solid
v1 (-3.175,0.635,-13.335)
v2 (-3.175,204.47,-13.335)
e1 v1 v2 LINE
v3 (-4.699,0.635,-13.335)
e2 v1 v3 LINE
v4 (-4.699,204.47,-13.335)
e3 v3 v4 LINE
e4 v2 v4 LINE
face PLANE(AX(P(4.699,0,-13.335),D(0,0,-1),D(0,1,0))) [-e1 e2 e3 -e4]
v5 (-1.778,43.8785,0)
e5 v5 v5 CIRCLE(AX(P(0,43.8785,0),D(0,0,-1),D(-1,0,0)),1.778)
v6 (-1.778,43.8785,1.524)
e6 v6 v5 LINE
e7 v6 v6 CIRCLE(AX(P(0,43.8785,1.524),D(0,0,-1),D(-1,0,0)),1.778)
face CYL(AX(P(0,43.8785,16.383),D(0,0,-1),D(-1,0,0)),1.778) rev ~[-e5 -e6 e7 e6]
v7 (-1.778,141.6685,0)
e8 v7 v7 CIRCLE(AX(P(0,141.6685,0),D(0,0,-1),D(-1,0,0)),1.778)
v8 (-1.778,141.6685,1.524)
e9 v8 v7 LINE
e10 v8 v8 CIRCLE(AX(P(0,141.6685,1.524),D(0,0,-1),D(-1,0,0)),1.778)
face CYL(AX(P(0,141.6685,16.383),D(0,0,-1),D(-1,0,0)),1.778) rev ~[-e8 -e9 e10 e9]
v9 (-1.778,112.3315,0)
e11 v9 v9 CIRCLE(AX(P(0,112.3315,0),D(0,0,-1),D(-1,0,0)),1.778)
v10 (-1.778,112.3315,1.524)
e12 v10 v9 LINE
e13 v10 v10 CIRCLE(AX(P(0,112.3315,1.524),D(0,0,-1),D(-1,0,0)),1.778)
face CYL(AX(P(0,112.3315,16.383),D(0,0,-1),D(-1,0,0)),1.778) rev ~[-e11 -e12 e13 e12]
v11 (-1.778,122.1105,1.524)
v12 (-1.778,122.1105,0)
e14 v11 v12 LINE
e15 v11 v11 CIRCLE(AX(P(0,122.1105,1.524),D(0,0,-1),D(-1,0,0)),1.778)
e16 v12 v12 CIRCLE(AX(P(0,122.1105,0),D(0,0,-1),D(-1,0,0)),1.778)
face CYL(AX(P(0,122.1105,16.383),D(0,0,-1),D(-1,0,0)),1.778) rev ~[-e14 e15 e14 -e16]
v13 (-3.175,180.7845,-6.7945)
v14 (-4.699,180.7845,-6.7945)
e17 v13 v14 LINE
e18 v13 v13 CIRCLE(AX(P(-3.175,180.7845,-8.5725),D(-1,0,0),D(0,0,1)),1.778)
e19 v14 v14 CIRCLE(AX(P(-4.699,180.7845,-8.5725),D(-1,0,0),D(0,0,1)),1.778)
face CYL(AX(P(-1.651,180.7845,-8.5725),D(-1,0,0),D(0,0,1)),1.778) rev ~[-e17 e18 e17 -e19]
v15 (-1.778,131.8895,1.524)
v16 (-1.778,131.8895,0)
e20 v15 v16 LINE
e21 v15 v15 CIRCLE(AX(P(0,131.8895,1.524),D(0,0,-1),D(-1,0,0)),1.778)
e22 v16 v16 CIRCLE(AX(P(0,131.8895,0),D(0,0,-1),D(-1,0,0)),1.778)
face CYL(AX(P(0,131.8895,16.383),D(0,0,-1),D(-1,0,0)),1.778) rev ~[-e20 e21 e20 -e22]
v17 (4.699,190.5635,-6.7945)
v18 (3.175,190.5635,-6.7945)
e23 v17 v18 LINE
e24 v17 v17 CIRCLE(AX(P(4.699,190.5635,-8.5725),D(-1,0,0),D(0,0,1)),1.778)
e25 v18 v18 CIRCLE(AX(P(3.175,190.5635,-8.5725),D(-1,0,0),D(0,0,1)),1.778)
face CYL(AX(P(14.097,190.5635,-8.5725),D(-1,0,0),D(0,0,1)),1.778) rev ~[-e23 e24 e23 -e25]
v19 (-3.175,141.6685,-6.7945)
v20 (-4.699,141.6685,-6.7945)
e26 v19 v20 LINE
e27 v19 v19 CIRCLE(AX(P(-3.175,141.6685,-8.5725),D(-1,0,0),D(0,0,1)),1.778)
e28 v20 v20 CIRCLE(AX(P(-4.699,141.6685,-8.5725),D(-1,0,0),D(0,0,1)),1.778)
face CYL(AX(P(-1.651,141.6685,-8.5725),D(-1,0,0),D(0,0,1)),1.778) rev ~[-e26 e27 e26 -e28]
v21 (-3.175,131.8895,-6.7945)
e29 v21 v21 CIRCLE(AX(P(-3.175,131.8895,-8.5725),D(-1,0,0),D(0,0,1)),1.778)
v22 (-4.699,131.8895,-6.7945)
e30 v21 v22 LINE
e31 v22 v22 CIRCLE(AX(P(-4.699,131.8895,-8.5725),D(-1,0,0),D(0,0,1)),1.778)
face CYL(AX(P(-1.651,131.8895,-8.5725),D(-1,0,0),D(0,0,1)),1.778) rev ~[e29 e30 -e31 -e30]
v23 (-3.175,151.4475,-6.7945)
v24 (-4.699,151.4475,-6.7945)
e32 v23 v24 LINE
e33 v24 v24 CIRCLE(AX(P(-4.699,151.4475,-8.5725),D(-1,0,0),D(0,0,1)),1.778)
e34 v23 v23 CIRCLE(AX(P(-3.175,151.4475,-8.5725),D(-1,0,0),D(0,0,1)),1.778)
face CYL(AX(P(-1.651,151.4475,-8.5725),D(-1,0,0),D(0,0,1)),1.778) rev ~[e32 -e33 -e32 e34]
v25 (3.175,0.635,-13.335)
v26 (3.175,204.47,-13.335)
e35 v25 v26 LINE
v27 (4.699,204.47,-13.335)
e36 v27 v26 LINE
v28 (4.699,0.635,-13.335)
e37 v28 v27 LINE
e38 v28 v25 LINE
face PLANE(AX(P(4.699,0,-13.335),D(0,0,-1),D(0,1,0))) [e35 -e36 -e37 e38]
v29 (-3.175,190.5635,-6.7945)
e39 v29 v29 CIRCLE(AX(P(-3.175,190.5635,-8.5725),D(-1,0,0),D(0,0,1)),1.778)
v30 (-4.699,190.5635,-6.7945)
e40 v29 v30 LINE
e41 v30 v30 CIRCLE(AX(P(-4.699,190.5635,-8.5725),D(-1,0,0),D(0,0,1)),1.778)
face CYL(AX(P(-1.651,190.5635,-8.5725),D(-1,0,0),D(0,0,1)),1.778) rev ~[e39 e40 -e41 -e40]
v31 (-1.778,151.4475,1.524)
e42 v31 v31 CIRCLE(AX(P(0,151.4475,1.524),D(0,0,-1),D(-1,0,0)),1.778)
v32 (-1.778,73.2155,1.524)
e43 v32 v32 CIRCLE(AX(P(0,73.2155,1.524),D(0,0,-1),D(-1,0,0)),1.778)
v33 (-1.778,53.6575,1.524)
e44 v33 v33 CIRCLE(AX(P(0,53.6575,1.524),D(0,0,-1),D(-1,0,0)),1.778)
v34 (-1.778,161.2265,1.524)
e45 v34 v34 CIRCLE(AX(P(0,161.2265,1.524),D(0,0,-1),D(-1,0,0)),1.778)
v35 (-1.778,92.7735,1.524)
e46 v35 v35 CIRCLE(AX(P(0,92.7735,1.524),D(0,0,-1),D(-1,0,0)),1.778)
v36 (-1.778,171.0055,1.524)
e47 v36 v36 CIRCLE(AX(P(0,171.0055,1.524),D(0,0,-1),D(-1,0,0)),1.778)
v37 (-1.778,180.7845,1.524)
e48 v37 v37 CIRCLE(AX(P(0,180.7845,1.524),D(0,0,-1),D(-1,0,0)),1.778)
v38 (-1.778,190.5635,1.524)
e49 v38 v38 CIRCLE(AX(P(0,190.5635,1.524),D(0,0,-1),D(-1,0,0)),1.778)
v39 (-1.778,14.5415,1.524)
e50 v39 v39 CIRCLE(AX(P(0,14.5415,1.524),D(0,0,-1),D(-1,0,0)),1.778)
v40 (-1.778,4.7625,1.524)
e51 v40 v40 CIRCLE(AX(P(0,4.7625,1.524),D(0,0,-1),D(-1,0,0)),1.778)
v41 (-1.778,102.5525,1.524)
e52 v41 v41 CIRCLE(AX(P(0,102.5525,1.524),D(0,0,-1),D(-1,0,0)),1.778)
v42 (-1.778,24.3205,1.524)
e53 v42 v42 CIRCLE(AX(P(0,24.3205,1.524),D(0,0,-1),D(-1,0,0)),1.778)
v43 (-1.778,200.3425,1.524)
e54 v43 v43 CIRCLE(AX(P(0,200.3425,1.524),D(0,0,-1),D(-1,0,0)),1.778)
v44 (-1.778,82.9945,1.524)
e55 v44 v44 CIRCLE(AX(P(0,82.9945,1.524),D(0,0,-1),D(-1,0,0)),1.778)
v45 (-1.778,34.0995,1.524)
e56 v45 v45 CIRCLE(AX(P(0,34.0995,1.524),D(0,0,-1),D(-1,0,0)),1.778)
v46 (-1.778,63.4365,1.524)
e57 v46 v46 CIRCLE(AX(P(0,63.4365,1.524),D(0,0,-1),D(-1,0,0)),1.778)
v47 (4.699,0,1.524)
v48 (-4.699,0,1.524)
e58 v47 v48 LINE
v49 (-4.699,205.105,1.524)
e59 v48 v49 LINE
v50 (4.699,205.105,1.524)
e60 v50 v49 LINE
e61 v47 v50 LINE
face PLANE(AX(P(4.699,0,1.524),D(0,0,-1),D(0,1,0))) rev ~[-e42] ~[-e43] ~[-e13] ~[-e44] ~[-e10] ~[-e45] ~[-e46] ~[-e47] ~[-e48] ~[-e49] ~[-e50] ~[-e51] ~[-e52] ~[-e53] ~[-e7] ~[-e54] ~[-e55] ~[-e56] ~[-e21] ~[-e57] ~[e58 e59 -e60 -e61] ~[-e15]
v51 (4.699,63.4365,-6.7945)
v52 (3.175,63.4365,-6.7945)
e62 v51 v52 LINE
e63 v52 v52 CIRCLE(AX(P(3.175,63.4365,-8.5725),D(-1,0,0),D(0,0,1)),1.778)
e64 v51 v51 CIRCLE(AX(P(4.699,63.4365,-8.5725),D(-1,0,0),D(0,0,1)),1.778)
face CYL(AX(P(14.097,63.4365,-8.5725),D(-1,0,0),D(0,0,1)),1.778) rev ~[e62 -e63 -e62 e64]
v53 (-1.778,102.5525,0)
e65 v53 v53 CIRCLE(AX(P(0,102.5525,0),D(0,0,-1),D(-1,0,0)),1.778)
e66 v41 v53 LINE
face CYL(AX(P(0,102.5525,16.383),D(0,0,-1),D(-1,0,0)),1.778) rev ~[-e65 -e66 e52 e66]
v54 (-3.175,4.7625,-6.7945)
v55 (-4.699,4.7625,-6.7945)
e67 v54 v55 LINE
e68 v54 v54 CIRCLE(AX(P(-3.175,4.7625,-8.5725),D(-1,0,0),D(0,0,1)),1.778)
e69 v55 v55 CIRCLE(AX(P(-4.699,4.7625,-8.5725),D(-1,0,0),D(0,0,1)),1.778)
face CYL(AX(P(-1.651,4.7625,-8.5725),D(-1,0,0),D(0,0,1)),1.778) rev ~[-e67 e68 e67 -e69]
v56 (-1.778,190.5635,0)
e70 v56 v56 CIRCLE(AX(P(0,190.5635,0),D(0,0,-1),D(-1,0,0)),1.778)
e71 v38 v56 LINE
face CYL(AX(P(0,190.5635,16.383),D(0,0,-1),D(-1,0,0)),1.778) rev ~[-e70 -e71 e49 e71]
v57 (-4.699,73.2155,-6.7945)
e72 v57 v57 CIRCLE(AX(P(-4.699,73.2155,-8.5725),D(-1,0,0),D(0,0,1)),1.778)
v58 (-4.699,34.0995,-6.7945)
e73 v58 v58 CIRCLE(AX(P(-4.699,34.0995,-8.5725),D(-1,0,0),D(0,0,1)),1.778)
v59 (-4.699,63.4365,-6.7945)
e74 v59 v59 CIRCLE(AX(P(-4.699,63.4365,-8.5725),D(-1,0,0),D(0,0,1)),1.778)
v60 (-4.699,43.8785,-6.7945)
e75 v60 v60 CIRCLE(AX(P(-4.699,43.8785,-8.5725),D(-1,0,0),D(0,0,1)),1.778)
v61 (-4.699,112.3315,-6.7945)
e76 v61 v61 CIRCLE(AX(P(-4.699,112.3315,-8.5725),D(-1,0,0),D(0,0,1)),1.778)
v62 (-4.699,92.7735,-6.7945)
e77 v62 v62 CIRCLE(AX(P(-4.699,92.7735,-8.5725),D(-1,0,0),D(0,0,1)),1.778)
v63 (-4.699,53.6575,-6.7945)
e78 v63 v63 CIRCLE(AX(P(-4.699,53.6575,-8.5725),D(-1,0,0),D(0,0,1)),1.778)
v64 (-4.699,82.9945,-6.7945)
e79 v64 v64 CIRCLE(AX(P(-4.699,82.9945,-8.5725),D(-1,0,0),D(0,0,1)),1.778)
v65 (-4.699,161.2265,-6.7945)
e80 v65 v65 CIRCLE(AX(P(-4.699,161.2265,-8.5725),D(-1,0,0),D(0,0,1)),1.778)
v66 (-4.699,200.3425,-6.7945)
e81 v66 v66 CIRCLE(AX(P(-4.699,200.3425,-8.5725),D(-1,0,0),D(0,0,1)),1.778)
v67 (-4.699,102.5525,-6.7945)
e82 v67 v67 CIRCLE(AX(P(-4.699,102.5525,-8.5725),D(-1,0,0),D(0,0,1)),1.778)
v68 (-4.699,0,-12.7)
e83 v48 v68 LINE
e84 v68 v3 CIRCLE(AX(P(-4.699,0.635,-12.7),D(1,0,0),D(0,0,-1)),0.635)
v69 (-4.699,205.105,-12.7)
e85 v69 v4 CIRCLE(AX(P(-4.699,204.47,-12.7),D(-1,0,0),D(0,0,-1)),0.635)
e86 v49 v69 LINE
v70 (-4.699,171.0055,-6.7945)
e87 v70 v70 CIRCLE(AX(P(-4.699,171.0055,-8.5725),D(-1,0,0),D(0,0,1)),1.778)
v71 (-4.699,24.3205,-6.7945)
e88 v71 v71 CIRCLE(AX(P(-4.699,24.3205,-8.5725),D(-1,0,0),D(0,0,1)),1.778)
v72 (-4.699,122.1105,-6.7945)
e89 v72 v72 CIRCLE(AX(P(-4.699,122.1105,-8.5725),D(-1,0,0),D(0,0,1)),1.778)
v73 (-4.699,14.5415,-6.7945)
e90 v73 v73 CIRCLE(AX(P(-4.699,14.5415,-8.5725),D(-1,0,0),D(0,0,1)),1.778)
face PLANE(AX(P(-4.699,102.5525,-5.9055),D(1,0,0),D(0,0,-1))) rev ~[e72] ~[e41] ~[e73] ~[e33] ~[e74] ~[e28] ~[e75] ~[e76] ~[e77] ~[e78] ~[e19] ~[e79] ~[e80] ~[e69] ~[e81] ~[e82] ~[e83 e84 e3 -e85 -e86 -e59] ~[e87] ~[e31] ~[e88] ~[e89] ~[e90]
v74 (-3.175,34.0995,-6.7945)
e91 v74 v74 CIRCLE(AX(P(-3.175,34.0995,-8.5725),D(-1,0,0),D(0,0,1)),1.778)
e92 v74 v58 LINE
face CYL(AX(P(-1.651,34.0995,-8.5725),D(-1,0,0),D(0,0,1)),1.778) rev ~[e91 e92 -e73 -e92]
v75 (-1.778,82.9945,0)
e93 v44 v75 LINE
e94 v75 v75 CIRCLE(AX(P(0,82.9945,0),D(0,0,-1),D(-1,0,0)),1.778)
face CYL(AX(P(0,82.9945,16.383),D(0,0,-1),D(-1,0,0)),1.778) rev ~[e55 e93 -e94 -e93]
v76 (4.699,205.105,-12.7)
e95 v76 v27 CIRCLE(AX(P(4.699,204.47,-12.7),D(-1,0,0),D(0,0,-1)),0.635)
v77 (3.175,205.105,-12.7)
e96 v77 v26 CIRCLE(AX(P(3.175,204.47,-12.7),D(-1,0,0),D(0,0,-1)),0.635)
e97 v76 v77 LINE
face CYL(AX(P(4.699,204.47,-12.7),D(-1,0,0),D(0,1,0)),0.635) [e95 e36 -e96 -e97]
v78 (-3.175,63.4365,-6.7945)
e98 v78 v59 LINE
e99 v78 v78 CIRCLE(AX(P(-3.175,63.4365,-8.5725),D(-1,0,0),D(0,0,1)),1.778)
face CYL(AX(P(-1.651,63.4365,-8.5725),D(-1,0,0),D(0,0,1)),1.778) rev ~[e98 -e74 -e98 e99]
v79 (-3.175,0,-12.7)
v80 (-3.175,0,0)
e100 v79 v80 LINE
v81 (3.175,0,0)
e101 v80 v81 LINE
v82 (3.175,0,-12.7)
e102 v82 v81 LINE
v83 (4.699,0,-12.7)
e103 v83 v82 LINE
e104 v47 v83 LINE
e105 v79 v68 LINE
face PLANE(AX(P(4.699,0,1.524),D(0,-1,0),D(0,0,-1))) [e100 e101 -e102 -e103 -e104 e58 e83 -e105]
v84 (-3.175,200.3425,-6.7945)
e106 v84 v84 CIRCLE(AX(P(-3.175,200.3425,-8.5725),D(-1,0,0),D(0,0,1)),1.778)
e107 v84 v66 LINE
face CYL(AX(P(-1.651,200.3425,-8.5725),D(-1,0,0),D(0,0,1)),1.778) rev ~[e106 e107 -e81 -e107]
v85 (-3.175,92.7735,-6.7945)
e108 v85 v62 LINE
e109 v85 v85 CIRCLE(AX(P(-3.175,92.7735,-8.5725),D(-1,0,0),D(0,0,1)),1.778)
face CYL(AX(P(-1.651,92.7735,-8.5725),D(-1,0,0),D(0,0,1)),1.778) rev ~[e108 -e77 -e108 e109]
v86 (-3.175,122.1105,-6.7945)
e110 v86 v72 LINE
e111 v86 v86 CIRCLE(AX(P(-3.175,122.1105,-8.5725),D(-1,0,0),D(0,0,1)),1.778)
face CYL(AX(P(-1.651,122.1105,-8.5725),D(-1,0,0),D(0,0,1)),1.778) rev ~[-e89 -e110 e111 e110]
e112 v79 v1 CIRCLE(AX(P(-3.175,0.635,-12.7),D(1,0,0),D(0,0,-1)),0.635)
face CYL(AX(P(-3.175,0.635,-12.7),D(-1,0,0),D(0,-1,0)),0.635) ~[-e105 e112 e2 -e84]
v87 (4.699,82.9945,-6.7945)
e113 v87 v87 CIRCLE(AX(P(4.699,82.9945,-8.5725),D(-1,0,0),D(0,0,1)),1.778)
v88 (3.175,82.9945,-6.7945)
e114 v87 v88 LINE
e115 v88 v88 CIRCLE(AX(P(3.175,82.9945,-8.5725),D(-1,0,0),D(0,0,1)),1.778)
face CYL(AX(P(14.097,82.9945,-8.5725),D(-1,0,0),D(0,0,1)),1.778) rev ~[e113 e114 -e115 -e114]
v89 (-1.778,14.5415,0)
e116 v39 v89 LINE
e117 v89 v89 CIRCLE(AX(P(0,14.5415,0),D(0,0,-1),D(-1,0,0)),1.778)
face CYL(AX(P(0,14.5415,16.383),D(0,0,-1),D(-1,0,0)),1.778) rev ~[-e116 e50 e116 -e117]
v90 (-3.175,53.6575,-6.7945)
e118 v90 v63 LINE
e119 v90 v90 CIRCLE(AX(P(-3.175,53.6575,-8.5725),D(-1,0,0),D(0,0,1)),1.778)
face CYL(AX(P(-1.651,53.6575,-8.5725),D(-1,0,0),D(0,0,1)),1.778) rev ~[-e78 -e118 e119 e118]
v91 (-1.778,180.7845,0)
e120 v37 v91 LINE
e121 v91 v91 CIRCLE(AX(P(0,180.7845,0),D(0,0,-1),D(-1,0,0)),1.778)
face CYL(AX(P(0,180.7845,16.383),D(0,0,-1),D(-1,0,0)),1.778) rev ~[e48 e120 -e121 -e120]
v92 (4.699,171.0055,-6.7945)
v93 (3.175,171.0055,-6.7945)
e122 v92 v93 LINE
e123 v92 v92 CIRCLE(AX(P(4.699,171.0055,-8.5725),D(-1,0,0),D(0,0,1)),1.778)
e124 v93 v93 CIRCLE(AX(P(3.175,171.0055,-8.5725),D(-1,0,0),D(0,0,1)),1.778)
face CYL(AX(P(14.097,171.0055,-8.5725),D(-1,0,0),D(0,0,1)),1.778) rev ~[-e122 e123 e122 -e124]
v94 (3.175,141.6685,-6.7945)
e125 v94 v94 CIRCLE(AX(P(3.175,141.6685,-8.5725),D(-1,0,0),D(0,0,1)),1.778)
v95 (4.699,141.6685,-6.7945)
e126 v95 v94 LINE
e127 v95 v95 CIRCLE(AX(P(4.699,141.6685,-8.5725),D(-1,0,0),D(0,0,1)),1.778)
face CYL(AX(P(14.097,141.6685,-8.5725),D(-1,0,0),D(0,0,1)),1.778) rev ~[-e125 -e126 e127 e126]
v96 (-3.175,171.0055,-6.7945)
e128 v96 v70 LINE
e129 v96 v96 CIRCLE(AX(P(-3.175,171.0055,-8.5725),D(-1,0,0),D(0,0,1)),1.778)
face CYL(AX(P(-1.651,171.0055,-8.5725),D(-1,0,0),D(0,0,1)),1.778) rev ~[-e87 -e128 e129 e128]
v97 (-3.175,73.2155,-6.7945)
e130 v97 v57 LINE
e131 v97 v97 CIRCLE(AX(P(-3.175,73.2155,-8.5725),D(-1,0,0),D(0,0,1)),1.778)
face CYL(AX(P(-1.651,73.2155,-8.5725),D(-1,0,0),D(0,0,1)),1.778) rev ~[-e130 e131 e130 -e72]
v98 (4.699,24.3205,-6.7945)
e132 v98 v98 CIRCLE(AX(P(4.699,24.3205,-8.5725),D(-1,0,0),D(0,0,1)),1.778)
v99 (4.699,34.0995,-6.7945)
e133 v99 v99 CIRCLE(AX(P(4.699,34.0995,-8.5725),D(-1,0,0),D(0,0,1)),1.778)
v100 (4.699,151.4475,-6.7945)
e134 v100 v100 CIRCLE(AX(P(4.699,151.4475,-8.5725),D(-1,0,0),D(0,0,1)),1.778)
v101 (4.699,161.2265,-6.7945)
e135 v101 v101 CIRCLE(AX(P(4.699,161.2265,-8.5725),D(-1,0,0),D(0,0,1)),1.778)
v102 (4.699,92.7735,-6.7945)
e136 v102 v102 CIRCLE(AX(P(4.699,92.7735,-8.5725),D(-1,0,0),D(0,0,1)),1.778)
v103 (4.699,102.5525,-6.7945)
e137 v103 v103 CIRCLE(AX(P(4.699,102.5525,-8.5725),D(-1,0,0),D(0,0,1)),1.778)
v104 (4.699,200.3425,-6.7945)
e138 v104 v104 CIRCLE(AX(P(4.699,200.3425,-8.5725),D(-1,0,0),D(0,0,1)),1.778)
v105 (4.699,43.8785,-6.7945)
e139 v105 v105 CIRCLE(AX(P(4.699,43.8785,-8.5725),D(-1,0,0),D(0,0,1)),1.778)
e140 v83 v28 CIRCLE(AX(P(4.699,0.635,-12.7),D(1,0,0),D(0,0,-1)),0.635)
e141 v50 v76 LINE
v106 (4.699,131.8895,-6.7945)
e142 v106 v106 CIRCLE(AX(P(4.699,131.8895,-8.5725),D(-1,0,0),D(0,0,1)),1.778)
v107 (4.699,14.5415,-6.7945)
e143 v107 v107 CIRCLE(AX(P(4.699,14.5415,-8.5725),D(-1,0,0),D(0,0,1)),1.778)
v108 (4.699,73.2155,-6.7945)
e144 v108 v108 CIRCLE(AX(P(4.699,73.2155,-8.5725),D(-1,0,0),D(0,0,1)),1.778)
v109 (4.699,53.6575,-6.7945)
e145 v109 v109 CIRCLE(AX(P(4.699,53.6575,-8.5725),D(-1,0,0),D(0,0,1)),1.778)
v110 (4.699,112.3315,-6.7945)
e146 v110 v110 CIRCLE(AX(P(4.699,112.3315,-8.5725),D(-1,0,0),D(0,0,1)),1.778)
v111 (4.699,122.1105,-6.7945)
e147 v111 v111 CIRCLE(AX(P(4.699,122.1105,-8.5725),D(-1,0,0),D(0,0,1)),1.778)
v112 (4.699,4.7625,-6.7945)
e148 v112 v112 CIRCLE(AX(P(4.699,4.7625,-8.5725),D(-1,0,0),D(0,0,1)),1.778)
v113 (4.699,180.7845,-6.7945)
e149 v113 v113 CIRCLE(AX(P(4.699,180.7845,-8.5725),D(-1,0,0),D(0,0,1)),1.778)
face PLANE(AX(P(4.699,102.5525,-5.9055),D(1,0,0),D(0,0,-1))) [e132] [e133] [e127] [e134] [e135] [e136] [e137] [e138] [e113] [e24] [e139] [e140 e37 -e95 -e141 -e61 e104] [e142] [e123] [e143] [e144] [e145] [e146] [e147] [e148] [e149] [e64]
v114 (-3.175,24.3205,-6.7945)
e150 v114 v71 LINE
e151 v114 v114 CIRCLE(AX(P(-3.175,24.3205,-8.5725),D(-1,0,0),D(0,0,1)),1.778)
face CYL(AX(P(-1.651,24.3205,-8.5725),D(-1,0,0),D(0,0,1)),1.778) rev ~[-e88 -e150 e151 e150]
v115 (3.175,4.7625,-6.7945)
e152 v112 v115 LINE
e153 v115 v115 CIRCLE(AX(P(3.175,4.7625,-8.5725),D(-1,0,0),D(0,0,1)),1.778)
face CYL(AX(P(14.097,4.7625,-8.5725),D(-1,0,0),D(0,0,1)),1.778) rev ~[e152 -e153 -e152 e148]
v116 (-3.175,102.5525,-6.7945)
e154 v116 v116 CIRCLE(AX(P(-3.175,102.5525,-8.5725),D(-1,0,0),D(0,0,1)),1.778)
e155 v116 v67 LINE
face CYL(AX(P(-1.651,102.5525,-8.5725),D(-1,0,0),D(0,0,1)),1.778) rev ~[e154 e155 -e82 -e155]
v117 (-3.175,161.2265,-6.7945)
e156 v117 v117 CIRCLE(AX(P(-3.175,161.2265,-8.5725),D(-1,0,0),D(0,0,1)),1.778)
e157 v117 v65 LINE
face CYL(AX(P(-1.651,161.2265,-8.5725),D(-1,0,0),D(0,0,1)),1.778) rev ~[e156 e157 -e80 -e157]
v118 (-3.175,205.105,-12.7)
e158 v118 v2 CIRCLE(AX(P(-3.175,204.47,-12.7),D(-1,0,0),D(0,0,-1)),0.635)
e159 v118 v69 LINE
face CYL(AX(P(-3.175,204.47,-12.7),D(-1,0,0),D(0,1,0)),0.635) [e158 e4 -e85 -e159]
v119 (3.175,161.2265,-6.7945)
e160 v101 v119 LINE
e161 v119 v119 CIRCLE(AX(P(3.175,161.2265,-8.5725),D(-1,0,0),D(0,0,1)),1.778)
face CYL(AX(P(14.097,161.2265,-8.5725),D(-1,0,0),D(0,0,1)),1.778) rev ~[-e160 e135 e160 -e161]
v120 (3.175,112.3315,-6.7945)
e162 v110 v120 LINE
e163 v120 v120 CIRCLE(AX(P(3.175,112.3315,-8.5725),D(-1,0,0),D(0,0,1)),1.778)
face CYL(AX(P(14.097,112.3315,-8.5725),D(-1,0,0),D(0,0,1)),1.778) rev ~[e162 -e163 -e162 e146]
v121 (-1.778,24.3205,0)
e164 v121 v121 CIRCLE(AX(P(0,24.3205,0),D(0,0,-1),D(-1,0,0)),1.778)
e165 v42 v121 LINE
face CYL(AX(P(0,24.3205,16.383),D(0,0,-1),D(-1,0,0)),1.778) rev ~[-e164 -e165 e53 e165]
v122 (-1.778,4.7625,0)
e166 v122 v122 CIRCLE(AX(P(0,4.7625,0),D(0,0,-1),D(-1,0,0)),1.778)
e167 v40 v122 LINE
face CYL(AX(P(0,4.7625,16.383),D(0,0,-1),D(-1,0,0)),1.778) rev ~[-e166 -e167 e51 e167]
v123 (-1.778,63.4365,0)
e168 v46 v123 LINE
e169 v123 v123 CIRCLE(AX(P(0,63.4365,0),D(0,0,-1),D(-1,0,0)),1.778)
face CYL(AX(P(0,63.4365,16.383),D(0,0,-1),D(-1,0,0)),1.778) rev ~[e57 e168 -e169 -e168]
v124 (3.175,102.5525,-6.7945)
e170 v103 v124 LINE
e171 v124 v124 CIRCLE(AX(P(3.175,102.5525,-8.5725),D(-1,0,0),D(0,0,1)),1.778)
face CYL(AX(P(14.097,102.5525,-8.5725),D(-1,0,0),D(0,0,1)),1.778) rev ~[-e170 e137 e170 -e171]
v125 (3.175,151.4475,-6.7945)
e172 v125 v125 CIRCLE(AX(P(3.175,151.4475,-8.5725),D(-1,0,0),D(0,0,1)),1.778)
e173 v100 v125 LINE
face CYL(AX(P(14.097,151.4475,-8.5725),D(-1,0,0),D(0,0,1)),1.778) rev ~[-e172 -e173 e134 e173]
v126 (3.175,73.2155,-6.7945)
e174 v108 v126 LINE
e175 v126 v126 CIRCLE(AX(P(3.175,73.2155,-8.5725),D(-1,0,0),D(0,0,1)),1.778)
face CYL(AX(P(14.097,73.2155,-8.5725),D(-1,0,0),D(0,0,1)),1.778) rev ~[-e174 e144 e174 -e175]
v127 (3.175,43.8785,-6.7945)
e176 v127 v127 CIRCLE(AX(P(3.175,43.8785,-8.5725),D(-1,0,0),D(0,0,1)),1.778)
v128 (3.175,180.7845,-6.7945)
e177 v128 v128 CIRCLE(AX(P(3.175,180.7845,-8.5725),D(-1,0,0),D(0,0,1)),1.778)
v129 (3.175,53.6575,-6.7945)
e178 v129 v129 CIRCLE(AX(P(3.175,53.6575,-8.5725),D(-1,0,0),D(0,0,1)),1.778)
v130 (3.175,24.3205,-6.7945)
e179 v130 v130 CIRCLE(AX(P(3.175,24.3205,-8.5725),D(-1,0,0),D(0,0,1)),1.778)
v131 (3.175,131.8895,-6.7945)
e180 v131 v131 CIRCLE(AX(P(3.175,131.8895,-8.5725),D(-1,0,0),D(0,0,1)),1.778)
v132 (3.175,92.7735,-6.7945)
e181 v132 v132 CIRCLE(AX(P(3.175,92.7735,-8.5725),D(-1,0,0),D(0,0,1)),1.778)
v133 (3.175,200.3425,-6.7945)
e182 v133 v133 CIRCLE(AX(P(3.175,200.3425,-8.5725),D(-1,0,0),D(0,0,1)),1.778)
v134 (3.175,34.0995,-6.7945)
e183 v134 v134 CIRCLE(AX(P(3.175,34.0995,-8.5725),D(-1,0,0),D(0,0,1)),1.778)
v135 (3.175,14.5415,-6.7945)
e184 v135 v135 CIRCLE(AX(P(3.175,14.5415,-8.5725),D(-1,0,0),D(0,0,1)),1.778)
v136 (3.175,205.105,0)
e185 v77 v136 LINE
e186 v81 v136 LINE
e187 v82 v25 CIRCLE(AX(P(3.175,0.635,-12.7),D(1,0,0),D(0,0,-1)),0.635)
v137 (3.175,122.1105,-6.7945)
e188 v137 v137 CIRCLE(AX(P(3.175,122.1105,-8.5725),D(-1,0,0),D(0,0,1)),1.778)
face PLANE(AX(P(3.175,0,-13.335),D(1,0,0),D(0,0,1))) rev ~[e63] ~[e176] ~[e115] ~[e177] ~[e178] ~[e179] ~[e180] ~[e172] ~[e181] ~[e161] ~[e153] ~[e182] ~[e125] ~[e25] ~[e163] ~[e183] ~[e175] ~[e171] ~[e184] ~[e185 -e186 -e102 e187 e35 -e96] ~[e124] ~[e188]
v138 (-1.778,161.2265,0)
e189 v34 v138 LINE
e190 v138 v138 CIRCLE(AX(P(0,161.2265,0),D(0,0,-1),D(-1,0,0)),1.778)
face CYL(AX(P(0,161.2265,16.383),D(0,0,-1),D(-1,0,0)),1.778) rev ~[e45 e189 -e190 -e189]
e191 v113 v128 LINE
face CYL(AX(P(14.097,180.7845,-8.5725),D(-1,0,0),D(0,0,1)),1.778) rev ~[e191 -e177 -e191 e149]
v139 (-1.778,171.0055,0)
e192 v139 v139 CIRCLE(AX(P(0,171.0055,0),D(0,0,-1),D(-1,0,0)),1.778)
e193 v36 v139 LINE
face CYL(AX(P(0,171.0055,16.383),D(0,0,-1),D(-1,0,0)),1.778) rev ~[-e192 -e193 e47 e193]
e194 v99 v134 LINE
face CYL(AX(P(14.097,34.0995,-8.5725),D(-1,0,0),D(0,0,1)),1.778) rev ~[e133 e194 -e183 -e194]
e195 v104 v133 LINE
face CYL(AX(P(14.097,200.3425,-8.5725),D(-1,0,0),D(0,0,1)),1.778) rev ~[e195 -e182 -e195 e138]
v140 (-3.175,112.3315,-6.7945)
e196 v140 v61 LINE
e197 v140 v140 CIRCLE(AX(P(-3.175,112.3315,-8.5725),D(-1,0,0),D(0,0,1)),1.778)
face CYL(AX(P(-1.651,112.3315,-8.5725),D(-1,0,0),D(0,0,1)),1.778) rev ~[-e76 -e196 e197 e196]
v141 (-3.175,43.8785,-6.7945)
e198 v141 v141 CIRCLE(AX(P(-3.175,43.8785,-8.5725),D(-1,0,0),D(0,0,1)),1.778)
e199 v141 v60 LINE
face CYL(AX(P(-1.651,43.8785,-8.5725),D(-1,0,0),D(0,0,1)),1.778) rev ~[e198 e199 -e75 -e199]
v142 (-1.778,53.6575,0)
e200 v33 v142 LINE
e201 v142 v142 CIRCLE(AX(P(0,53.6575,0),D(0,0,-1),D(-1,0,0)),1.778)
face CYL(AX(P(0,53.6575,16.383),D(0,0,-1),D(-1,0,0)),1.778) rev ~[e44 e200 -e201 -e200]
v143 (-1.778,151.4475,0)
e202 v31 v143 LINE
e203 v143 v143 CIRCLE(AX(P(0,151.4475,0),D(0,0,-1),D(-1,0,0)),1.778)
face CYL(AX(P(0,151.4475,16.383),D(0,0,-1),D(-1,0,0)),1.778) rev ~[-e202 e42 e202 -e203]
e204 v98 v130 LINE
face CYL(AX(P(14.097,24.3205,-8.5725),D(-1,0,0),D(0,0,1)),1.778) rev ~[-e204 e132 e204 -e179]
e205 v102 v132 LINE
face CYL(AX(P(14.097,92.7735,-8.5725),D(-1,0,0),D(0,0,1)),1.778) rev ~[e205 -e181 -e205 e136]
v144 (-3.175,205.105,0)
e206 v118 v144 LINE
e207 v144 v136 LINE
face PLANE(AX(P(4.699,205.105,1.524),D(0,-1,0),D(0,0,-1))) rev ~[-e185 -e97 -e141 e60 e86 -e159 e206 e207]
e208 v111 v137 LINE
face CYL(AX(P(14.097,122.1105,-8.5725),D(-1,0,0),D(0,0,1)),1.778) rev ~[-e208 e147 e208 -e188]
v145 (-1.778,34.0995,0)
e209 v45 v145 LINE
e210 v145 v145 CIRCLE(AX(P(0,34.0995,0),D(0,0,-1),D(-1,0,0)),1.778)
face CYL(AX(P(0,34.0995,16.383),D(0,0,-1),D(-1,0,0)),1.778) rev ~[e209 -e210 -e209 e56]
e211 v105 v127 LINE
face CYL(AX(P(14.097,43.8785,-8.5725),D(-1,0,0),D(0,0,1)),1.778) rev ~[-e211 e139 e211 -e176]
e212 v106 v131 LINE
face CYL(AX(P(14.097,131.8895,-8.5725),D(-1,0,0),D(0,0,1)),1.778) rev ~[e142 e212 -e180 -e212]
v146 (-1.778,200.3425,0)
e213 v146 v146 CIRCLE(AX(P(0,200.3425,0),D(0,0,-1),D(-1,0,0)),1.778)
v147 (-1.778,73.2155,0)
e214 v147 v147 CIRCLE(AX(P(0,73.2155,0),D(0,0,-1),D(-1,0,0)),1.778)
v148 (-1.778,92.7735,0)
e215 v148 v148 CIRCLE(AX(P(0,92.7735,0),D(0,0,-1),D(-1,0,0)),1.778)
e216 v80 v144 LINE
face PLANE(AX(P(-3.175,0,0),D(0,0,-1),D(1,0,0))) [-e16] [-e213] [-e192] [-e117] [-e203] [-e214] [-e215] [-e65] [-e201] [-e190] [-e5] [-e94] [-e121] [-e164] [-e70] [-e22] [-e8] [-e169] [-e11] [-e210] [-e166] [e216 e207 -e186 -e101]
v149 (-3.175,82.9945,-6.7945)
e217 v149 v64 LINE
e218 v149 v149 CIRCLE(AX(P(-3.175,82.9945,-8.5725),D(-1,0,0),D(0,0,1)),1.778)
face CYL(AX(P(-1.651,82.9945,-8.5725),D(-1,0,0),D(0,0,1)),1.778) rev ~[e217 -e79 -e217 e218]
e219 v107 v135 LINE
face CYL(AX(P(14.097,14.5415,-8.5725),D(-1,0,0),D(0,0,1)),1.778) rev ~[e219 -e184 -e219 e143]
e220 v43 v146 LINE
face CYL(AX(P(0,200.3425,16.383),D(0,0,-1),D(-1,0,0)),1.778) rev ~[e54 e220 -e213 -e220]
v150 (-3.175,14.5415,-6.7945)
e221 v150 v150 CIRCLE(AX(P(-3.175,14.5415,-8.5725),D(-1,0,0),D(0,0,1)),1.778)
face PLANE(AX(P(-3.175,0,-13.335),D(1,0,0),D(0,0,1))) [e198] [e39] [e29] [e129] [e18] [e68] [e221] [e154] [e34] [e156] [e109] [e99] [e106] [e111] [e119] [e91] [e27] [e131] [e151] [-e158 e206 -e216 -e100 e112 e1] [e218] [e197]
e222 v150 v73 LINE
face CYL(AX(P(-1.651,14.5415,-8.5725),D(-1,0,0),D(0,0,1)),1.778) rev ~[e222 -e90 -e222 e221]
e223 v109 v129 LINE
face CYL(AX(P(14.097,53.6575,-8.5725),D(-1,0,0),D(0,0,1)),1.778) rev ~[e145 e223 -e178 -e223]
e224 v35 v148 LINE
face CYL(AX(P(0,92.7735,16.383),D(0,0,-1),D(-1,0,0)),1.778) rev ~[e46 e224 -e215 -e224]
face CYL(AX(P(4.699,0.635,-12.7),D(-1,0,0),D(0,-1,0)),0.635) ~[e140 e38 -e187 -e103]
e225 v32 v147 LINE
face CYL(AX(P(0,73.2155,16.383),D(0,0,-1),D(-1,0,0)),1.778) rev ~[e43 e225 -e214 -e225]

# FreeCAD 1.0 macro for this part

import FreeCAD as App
import Part
import Sketcher
from FreeCAD import Vector
Q = App.Units.Quantity


def edges_at(feature, points):
    """Names of the edges that pass closest to the given points."""
    edges = feature.Shape.Edges
    near = lambda p: min(range(len(edges)), key=lambda i: edges[i].distToShape(Part.Vertex(*p))[0])
    return sorted({f"Edge{near(p) + 1}" for p in points})

doc = App.newDocument("Part")
body = doc.addObject("PartDesign::Body", "Body")

# Sketch on YZ plane
sketch1 = body.newObject("Sketcher::SketchObject", "Sketch")
sketch1.AttachmentSupport = (doc.getObject("YZ_Plane"), [""])
sketch1.MapMode = "FlatFace"
sketch1.AttachmentOffset = App.Placement(Vector(0, 0, 0.185 * 25.4), App.Rotation())
sketch1.addGeometry(Part.LineSegment(Vector(205, 2, 0), Vector(0, 2, 0)), False)
sketch1.addGeometry(Part.LineSegment(Vector(0, 2, 0), Vector(0, -13, 0)), False)
sketch1.addGeometry(Part.LineSegment(Vector(0, -13, 0), Vector(205, -13, 0)), False)
sketch1.addGeometry(Part.LineSegment(Vector(205, -13, 0), Vector(205, 2, 0)), False)
sketch1.addConstraint(Sketcher.Constraint("Coincident", 0, 2, 1, 1))
sketch1.addConstraint(Sketcher.Constraint("Coincident", 1, 2, 2, 1))
sketch1.addConstraint(Sketcher.Constraint("Coincident", 2, 2, 3, 1))
sketch1.addConstraint(Sketcher.Constraint("Coincident", 3, 2, 0, 1))
sketch1.addConstraint(Sketcher.Constraint("Horizontal", 0))
sketch1.addConstraint(Sketcher.Constraint("Vertical", 1))
sketch1.addConstraint(Sketcher.Constraint("Horizontal", 2))
sketch1.addConstraint(Sketcher.Constraint("Vertical", 3))
sketch1.addConstraint(Sketcher.Constraint("PointOnObject", 0, 2, -2))
sketch1.addConstraint(Sketcher.Constraint("DistanceX", 0, 2, 0, 1, Q("8.075 in")))
sketch1.addConstraint(Sketcher.Constraint("DistanceY", 1, 2, 1, 1, Q("0.585 in")))
sketch1.addConstraint(Sketcher.Constraint("DistanceY", -1, 1, 0, 2, Q("0.06 in")))
pad1 = body.newObject("PartDesign::Pad", "Pad")
pad1.Profile = sketch1
pad1.Length = Q("0.37 in")
pad1.Reversed = True

# Sketch on XZ plane
sketch2 = body.newObject("Sketcher::SketchObject", "Sketch001")
sketch2.AttachmentSupport = (doc.getObject("XZ_Plane"), [""])
sketch2.MapMode = "FlatFace"
sketch2.addGeometry(Part.LineSegment(Vector(-3, 0, 0), Vector(-3, -13, 0)), False)
sketch2.addGeometry(Part.LineSegment(Vector(-3, -13, 0), Vector(3, -13, 0)), False)
sketch2.addGeometry(Part.LineSegment(Vector(3, -13, 0), Vector(3, 0, 0)), False)
sketch2.addGeometry(Part.LineSegment(Vector(3, 0, 0), Vector(-3, 0, 0)), False)
sketch2.addConstraint(Sketcher.Constraint("Coincident", 0, 2, 1, 1))
sketch2.addConstraint(Sketcher.Constraint("Coincident", 1, 2, 2, 1))
sketch2.addConstraint(Sketcher.Constraint("Coincident", 2, 2, 3, 1))
sketch2.addConstraint(Sketcher.Constraint("Coincident", 3, 2, 0, 1))
sketch2.addConstraint(Sketcher.Constraint("Vertical", 0))
sketch2.addConstraint(Sketcher.Constraint("Horizontal", 1))
sketch2.addConstraint(Sketcher.Constraint("Vertical", 2))
sketch2.addConstraint(Sketcher.Constraint("Horizontal", 3))
sketch2.addConstraint(Sketcher.Constraint("Symmetric", 2, 2, 3, 2, -1, 1))
sketch2.addConstraint(Sketcher.Constraint("DistanceX", 1, 1, 1, 2, Q("0.25 in")))
sketch2.addConstraint(Sketcher.Constraint("DistanceY", 0, 2, 0, 1, Q("0.525 in")))
pocket1 = body.newObject("PartDesign::Pocket", "Pocket")
pocket1.Profile = sketch2
pocket1.Type = "ThroughAll"

# Sketch on YZ plane
sketch3 = body.newObject("Sketcher::SketchObject", "Sketch002")
sketch3.AttachmentSupport = (doc.getObject("YZ_Plane"), [""])
sketch3.MapMode = "FlatFace"
sketch3.AttachmentOffset = App.Placement(Vector(0, 0, -0.125 * 25.4), App.Rotation())
sketch3.addGeometry(Part.Circle(Vector(190.6, -8.6, 0), Vector(0, 0, 1), 1.8), False)
sketch3.addGeometry(Part.Circle(Vector(200.3, -8.6, 0), Vector(0, 0, 1), 1.8), False)
sketch3.addGeometry(Part.Circle(Vector(180.8, -8.6, 0), Vector(0, 0, 1), 1.8), False)
sketch3.addGeometry(Part.Circle(Vector(171, -8.6, 0), Vector(0, 0, 1), 1.8), False)
sketch3.addGeometry(Part.Circle(Vector(161.2, -8.6, 0), Vector(0, 0, 1), 1.8), False)
sketch3.addGeometry(Part.Circle(Vector(151.4, -8.6, 0), Vector(0, 0, 1), 1.8), False)
sketch3.addGeometry(Part.Circle(Vector(141.7, -8.6, 0), Vector(0, 0, 1), 1.8), False)
sketch3.addGeometry(Part.Circle(Vector(131.9, -8.6, 0), Vector(0, 0, 1), 1.8), False)
sketch3.addGeometry(Part.Circle(Vector(122.1, -8.6, 0), Vector(0, 0, 1), 1.8), False)
sketch3.addGeometry(Part.Circle(Vector(112.3, -8.6, 0), Vector(0, 0, 1), 1.8), False)
sketch3.addGeometry(Part.Circle(Vector(102.6, -8.6, 0), Vector(0, 0, 1), 1.8), False)
sketch3.addGeometry(Part.Circle(Vector(92.8, -8.6, 0), Vector(0, 0, 1), 1.8), False)
sketch3.addGeometry(Part.Circle(Vector(83, -8.6, 0), Vector(0, 0, 1), 1.8), False)
sketch3.addGeometry(Part.Circle(Vector(73.2, -8.6, 0), Vector(0, 0, 1), 1.8), False)
sketch3.addGeometry(Part.Circle(Vector(63.4, -8.6, 0), Vector(0, 0, 1), 1.8), False)
sketch3.addGeometry(Part.Circle(Vector(53.7, -8.6, 0), Vector(0, 0, 1), 1.8), False)
sketch3.addGeometry(Part.Circle(Vector(43.9, -8.6, 0), Vector(0, 0, 1), 1.8), False)
sketch3.addGeometry(Part.Circle(Vector(34.1, -8.6, 0), Vector(0, 0, 1), 1.8), False)
sketch3.addGeometry(Part.Circle(Vector(24.3, -8.6, 0), Vector(0, 0, 1), 1.8), False)
sketch3.addGeometry(Part.Circle(Vector(14.5, -8.6, 0), Vector(0, 0, 1), 1.8), False)
sketch3.addGeometry(Part.Circle(Vector(4.8, -8.6, 0), Vector(0, 0, 1), 1.8), False)
sketch3.addConstraint(Sketcher.Constraint("Equal", 0, 1))
sketch3.addConstraint(Sketcher.Constraint("Equal", 1, 2))
sketch3.addConstraint(Sketcher.Constraint("Equal", 2, 3))
sketch3.addConstraint(Sketcher.Constraint("Equal", 3, 4))
sketch3.addConstraint(Sketcher.Constraint("Equal", 4, 5))
sketch3.addConstraint(Sketcher.Constraint("Equal", 5, 6))
sketch3.addConstraint(Sketcher.Constraint("Equal", 6, 7))
sketch3.addConstraint(Sketcher.Constraint("Equal", 7, 8))
sketch3.addConstraint(Sketcher.Constraint("Equal", 8, 9))
sketch3.addConstraint(Sketcher.Constraint("Equal", 9, 10))
sketch3.addConstraint(Sketcher.Constraint("Equal", 10, 11))
sketch3.addConstraint(Sketcher.Constraint("Equal", 11, 12))
sketch3.addConstraint(Sketcher.Constraint("Equal", 12, 13))
sketch3.addConstraint(Sketcher.Constraint("Equal", 13, 14))
sketch3.addConstraint(Sketcher.Constraint("Equal", 14, 15))
sketch3.addConstraint(Sketcher.Constraint("Equal", 15, 16))
sketch3.addConstraint(Sketcher.Constraint("Equal", 16, 17))
sketch3.addConstraint(Sketcher.Constraint("Equal", 17, 18))
sketch3.addConstraint(Sketcher.Constraint("Equal", 18, 19))
sketch3.addConstraint(Sketcher.Constraint("Equal", 19, 20))
sketch3.addConstraint(Sketcher.Constraint("Horizontal", 0, 3, 1, 3))
sketch3.addConstraint(Sketcher.Constraint("Horizontal", 1, 3, 2, 3))
sketch3.addConstraint(Sketcher.Constraint("Horizontal", 2, 3, 3, 3))
sketch3.addConstraint(Sketcher.Constraint("Horizontal", 3, 3, 4, 3))
sketch3.addConstraint(Sketcher.Constraint("Horizontal", 4, 3, 5, 3))
sketch3.addConstraint(Sketcher.Constraint("Horizontal", 5, 3, 6, 3))
sketch3.addConstraint(Sketcher.Constraint("Horizontal", 6, 3, 7, 3))
sketch3.addConstraint(Sketcher.Constraint("Horizontal", 7, 3, 8, 3))
sketch3.addConstraint(Sketcher.Constraint("Horizontal", 8, 3, 9, 3))
sketch3.addConstraint(Sketcher.Constraint("Horizontal", 9, 3, 10, 3))
sketch3.addConstraint(Sketcher.Constraint("Horizontal", 10, 3, 11, 3))
sketch3.addConstraint(Sketcher.Constraint("Horizontal", 11, 3, 12, 3))
sketch3.addConstraint(Sketcher.Constraint("Horizontal", 12, 3, 13, 3))
sketch3.addConstraint(Sketcher.Constraint("Horizontal", 13, 3, 14, 3))
sketch3.addConstraint(Sketcher.Constraint("Horizontal", 14, 3, 15, 3))
sketch3.addConstraint(Sketcher.Constraint("Horizontal", 15, 3, 16, 3))
sketch3.addConstraint(Sketcher.Constraint("Horizontal", 16, 3, 17, 3))
sketch3.addConstraint(Sketcher.Constraint("Horizontal", 17, 3, 18, 3))
sketch3.addConstraint(Sketcher.Constraint("Horizontal", 18, 3, 19, 3))
sketch3.addConstraint(Sketcher.Constraint("Horizontal", 19, 3, 20, 3))
sketch3.addConstraint(Sketcher.Constraint("Diameter", 0, Q("0.14 in")))
sketch3.addConstraint(Sketcher.Constraint("DistanceX", 2, 3, 1, 3, Q("0.77 in")))
sketch3.addConstraint(Sketcher.Constraint("DistanceX", 3, 3, 0, 3, Q("0.77 in")))
sketch3.addConstraint(Sketcher.Constraint("DistanceX", 4, 3, 2, 3, Q("0.77 in")))
sketch3.addConstraint(Sketcher.Constraint("DistanceX", 5, 3, 3, 3, Q("0.77 in")))
sketch3.addConstraint(Sketcher.Constraint("DistanceX", 6, 3, 4, 3, Q("0.77 in")))
sketch3.addConstraint(Sketcher.Constraint("DistanceX", 7, 3, 5, 3, Q("0.77 in")))
sketch3.addConstraint(Sketcher.Constraint("DistanceX", 8, 3, 6, 3, Q("0.77 in")))
sketch3.addConstraint(Sketcher.Constraint("DistanceX", 9, 3, 7, 3, Q("0.77 in")))
sketch3.addConstraint(Sketcher.Constraint("DistanceX", 10, 3, 8, 3, Q("0.77 in")))
sketch3.addConstraint(Sketcher.Constraint("DistanceX", 11, 3, 9, 3, Q("0.77 in")))
sketch3.addConstraint(Sketcher.Constraint("DistanceX", 12, 3, 10, 3, Q("0.77 in")))
sketch3.addConstraint(Sketcher.Constraint("DistanceX", 13, 3, 11, 3, Q("0.77 in")))
sketch3.addConstraint(Sketcher.Constraint("DistanceX", 14, 3, 12, 3, Q("0.77 in")))
sketch3.addConstraint(Sketcher.Constraint("DistanceX", 15, 3, 13, 3, Q("0.77 in")))
sketch3.addConstraint(Sketcher.Constraint("DistanceX", 16, 3, 14, 3, Q("0.77 in")))
sketch3.addConstraint(Sketcher.Constraint("DistanceX", 17, 3, 15, 3, Q("0.77 in")))
sketch3.addConstraint(Sketcher.Constraint("DistanceX", 18, 3, 16, 3, Q("0.77 in")))
sketch3.addConstraint(Sketcher.Constraint("DistanceX", 19, 3, 17, 3, Q("0.77 in")))
sketch3.addConstraint(Sketcher.Constraint("DistanceX", 20, 3, 18, 3, Q("0.77 in")))
sketch3.addConstraint(Sketcher.Constraint("DistanceX", -1, 1, 20, 3, Q("0.1875 in")))
sketch3.addConstraint(Sketcher.Constraint("DistanceX", 0, 3, 1, 3, Q("0.385 in")))
sketch3.addConstraint(Sketcher.Constraint("DistanceY", 0, 3, -1, 1, Q("0.3375 in")))
doc.recompute()
hole = body.newObject("PartDesign::Hole", "Hole")
hole.Profile = sketch3
hole.ThreadType = "None"
hole.Diameter = Q("0.14 in")
hole.DepthType = "Dimension"
hole.Depth = Q("0.06 in")
hole.DrillPoint = "Flat"

# Sketch on XY plane
sketch4 = body.newObject("Sketcher::SketchObject", "Sketch003")
sketch4.AttachmentSupport = (doc.getObject("XY_Plane"), [""])
sketch4.MapMode = "FlatFace"
sketch4.AttachmentOffset = App.Placement(Vector(0, 0, 0.06 * 25.4), App.Rotation())
sketch4.addGeometry(Part.Circle(Vector(0, 190.6, 0), Vector(0, 0, 1), 1.8), False)
sketch4.addGeometry(Part.Circle(Vector(0, 200.3, 0), Vector(0, 0, 1), 1.8), False)
sketch4.addGeometry(Part.Circle(Vector(0, 180.8, 0), Vector(0, 0, 1), 1.8), False)
sketch4.addGeometry(Part.Circle(Vector(0, 171, 0), Vector(0, 0, 1), 1.8), False)
sketch4.addGeometry(Part.Circle(Vector(0, 161.2, 0), Vector(0, 0, 1), 1.8), False)
sketch4.addGeometry(Part.Circle(Vector(0, 151.4, 0), Vector(0, 0, 1), 1.8), False)
sketch4.addGeometry(Part.Circle(Vector(0, 141.7, 0), Vector(0, 0, 1), 1.8), False)
sketch4.addGeometry(Part.Circle(Vector(0, 131.9, 0), Vector(0, 0, 1), 1.8), False)
sketch4.addGeometry(Part.Circle(Vector(0, 122.1, 0), Vector(0, 0, 1), 1.8), False)
sketch4.addGeometry(Part.Circle(Vector(0, 112.3, 0), Vector(0, 0, 1), 1.8), False)
sketch4.addGeometry(Part.Circle(Vector(0, 102.6, 0), Vector(0, 0, 1), 1.8), False)
sketch4.addGeometry(Part.Circle(Vector(0, 92.8, 0), Vector(0, 0, 1), 1.8), False)
sketch4.addGeometry(Part.Circle(Vector(0, 83, 0), Vector(0, 0, 1), 1.8), False)
sketch4.addGeometry(Part.Circle(Vector(0, 73.2, 0), Vector(0, 0, 1), 1.8), False)
sketch4.addGeometry(Part.Circle(Vector(0, 63.4, 0), Vector(0, 0, 1), 1.8), False)
sketch4.addGeometry(Part.Circle(Vector(0, 53.7, 0), Vector(0, 0, 1), 1.8), False)
sketch4.addGeometry(Part.Circle(Vector(0, 43.9, 0), Vector(0, 0, 1), 1.8), False)
sketch4.addGeometry(Part.Circle(Vector(0, 34.1, 0), Vector(0, 0, 1), 1.8), False)
sketch4.addGeometry(Part.Circle(Vector(0, 24.3, 0), Vector(0, 0, 1), 1.8), False)
sketch4.addGeometry(Part.Circle(Vector(0, 14.5, 0), Vector(0, 0, 1), 1.8), False)
sketch4.addGeometry(Part.Circle(Vector(0, 4.8, 0), Vector(0, 0, 1), 1.8), False)
sketch4.addConstraint(Sketcher.Constraint("Equal", 0, 1))
sketch4.addConstraint(Sketcher.Constraint("Equal", 1, 2))
sketch4.addConstraint(Sketcher.Constraint("Equal", 2, 3))
sketch4.addConstraint(Sketcher.Constraint("Equal", 3, 4))
sketch4.addConstraint(Sketcher.Constraint("Equal", 4, 5))
sketch4.addConstraint(Sketcher.Constraint("Equal", 5, 6))
sketch4.addConstraint(Sketcher.Constraint("Equal", 6, 7))
sketch4.addConstraint(Sketcher.Constraint("Equal", 7, 8))
sketch4.addConstraint(Sketcher.Constraint("Equal", 8, 9))
sketch4.addConstraint(Sketcher.Constraint("Equal", 9, 10))
sketch4.addConstraint(Sketcher.Constraint("Equal", 10, 11))
sketch4.addConstraint(Sketcher.Constraint("Equal", 11, 12))
sketch4.addConstraint(Sketcher.Constraint("Equal", 12, 13))
sketch4.addConstraint(Sketcher.Constraint("Equal", 13, 14))
sketch4.addConstraint(Sketcher.Constraint("Equal", 14, 15))
sketch4.addConstraint(Sketcher.Constraint("Equal", 15, 16))
sketch4.addConstraint(Sketcher.Constraint("Equal", 16, 17))
sketch4.addConstraint(Sketcher.Constraint("Equal", 17, 18))
sketch4.addConstraint(Sketcher.Constraint("Equal", 18, 19))
sketch4.addConstraint(Sketcher.Constraint("Equal", 19, 20))
sketch4.addConstraint(Sketcher.Constraint("PointOnObject", 0, 3, -2))
sketch4.addConstraint(Sketcher.Constraint("PointOnObject", 1, 3, -2))
sketch4.addConstraint(Sketcher.Constraint("PointOnObject", 2, 3, -2))
sketch4.addConstraint(Sketcher.Constraint("PointOnObject", 3, 3, -2))
sketch4.addConstraint(Sketcher.Constraint("PointOnObject", 4, 3, -2))
sketch4.addConstraint(Sketcher.Constraint("PointOnObject", 5, 3, -2))
sketch4.addConstraint(Sketcher.Constraint("PointOnObject", 6, 3, -2))
sketch4.addConstraint(Sketcher.Constraint("PointOnObject", 7, 3, -2))
sketch4.addConstraint(Sketcher.Constraint("PointOnObject", 8, 3, -2))
sketch4.addConstraint(Sketcher.Constraint("PointOnObject", 9, 3, -2))
sketch4.addConstraint(Sketcher.Constraint("PointOnObject", 10, 3, -2))
sketch4.addConstraint(Sketcher.Constraint("PointOnObject", 11, 3, -2))
sketch4.addConstraint(Sketcher.Constraint("PointOnObject", 12, 3, -2))
sketch4.addConstraint(Sketcher.Constraint("PointOnObject", 13, 3, -2))
sketch4.addConstraint(Sketcher.Constraint("PointOnObject", 14, 3, -2))
sketch4.addConstraint(Sketcher.Constraint("PointOnObject", 15, 3, -2))
sketch4.addConstraint(Sketcher.Constraint("PointOnObject", 16, 3, -2))
sketch4.addConstraint(Sketcher.Constraint("PointOnObject", 17, 3, -2))
sketch4.addConstraint(Sketcher.Constraint("PointOnObject", 18, 3, -2))
sketch4.addConstraint(Sketcher.Constraint("PointOnObject", 19, 3, -2))
sketch4.addConstraint(Sketcher.Constraint("PointOnObject", 20, 3, -2))
sketch4.addConstraint(Sketcher.Constraint("Diameter", 0, Q("0.14 in")))
sketch4.addConstraint(Sketcher.Constraint("DistanceY", 2, 3, 1, 3, Q("0.77 in")))
sketch4.addConstraint(Sketcher.Constraint("DistanceY", 3, 3, 0, 3, Q("0.77 in")))
sketch4.addConstraint(Sketcher.Constraint("DistanceY", 4, 3, 2, 3, Q("0.77 in")))
sketch4.addConstraint(Sketcher.Constraint("DistanceY", 5, 3, 3, 3, Q("0.77 in")))
sketch4.addConstraint(Sketcher.Constraint("DistanceY", 6, 3, 4, 3, Q("0.77 in")))
sketch4.addConstraint(Sketcher.Constraint("DistanceY", 7, 3, 5, 3, Q("0.77 in")))
sketch4.addConstraint(Sketcher.Constraint("DistanceY", 8, 3, 6, 3, Q("0.77 in")))
sketch4.addConstraint(Sketcher.Constraint("DistanceY", 9, 3, 7, 3, Q("0.77 in")))
sketch4.addConstraint(Sketcher.Constraint("DistanceY", 10, 3, 8, 3, Q("0.77 in")))
sketch4.addConstraint(Sketcher.Constraint("DistanceY", 11, 3, 9, 3, Q("0.77 in")))
sketch4.addConstraint(Sketcher.Constraint("DistanceY", 12, 3, 10, 3, Q("0.77 in")))
sketch4.addConstraint(Sketcher.Constraint("DistanceY", 13, 3, 11, 3, Q("0.77 in")))
sketch4.addConstraint(Sketcher.Constraint("DistanceY", 14, 3, 12, 3, Q("0.77 in")))
sketch4.addConstraint(Sketcher.Constraint("DistanceY", 15, 3, 13, 3, Q("0.77 in")))
sketch4.addConstraint(Sketcher.Constraint("DistanceY", 16, 3, 14, 3, Q("0.77 in")))
sketch4.addConstraint(Sketcher.Constraint("DistanceY", 17, 3, 15, 3, Q("0.77 in")))
sketch4.addConstraint(Sketcher.Constraint("DistanceY", 18, 3, 16, 3, Q("0.77 in")))
sketch4.addConstraint(Sketcher.Constraint("DistanceY", 19, 3, 17, 3, Q("0.77 in")))
sketch4.addConstraint(Sketcher.Constraint("DistanceY", 20, 3, 18, 3, Q("0.77 in")))
sketch4.addConstraint(Sketcher.Constraint("DistanceY", -1, 1, 20, 3, Q("0.1875 in")))
sketch4.addConstraint(Sketcher.Constraint("DistanceY", 0, 3, 1, 3, Q("0.385 in")))
doc.recompute()
hole2 = body.newObject("PartDesign::Hole", "Hole001")
hole2.Profile = sketch4
hole2.ThreadType = "None"
hole2.Diameter = Q("0.14 in")
hole2.DepthType = "Dimension"
hole2.Depth = Q("0.585 in")
hole2.DrillPoint = "Flat"

# Sketch on YZ plane
sketch5 = body.newObject("Sketcher::SketchObject", "Sketch004")
sketch5.AttachmentSupport = (doc.getObject("YZ_Plane"), [""])
sketch5.MapMode = "FlatFace"
sketch5.AttachmentOffset = App.Placement(Vector(0, 0, 0.185 * 25.4), App.Rotation())
sketch5.addGeometry(Part.Circle(Vector(190.6, -8.6, 0), Vector(0, 0, 1), 1.8), False)
sketch5.addGeometry(Part.Circle(Vector(200.3, -8.6, 0), Vector(0, 0, 1), 1.8), False)
sketch5.addGeometry(Part.Circle(Vector(180.8, -8.6, 0), Vector(0, 0, 1), 1.8), False)
sketch5.addGeometry(Part.Circle(Vector(171, -8.6, 0), Vector(0, 0, 1), 1.8), False)
sketch5.addGeometry(Part.Circle(Vector(161.2, -8.6, 0), Vector(0, 0, 1), 1.8), False)
sketch5.addGeometry(Part.Circle(Vector(151.4, -8.6, 0), Vector(0, 0, 1), 1.8), False)
sketch5.addGeometry(Part.Circle(Vector(141.7, -8.6, 0), Vector(0, 0, 1), 1.8), False)
sketch5.addGeometry(Part.Circle(Vector(131.9, -8.6, 0), Vector(0, 0, 1), 1.8), False)
sketch5.addGeometry(Part.Circle(Vector(122.1, -8.6, 0), Vector(0, 0, 1), 1.8), False)
sketch5.addGeometry(Part.Circle(Vector(112.3, -8.6, 0), Vector(0, 0, 1), 1.8), False)
sketch5.addGeometry(Part.Circle(Vector(102.6, -8.6, 0), Vector(0, 0, 1), 1.8), False)
sketch5.addGeometry(Part.Circle(Vector(92.8, -8.6, 0), Vector(0, 0, 1), 1.8), False)
sketch5.addGeometry(Part.Circle(Vector(83, -8.6, 0), Vector(0, 0, 1), 1.8), False)
sketch5.addGeometry(Part.Circle(Vector(73.2, -8.6, 0), Vector(0, 0, 1), 1.8), False)
sketch5.addGeometry(Part.Circle(Vector(63.4, -8.6, 0), Vector(0, 0, 1), 1.8), False)
sketch5.addGeometry(Part.Circle(Vector(53.7, -8.6, 0), Vector(0, 0, 1), 1.8), False)
sketch5.addGeometry(Part.Circle(Vector(43.9, -8.6, 0), Vector(0, 0, 1), 1.8), False)
sketch5.addGeometry(Part.Circle(Vector(34.1, -8.6, 0), Vector(0, 0, 1), 1.8), False)
sketch5.addGeometry(Part.Circle(Vector(24.3, -8.6, 0), Vector(0, 0, 1), 1.8), False)
sketch5.addGeometry(Part.Circle(Vector(14.5, -8.6, 0), Vector(0, 0, 1), 1.8), False)
sketch5.addGeometry(Part.Circle(Vector(4.8, -8.6, 0), Vector(0, 0, 1), 1.8), False)
sketch5.addConstraint(Sketcher.Constraint("Equal", 0, 1))
sketch5.addConstraint(Sketcher.Constraint("Equal", 1, 2))
sketch5.addConstraint(Sketcher.Constraint("Equal", 2, 3))
sketch5.addConstraint(Sketcher.Constraint("Equal", 3, 4))
sketch5.addConstraint(Sketcher.Constraint("Equal", 4, 5))
sketch5.addConstraint(Sketcher.Constraint("Equal", 5, 6))
sketch5.addConstraint(Sketcher.Constraint("Equal", 6, 7))
sketch5.addConstraint(Sketcher.Constraint("Equal", 7, 8))
sketch5.addConstraint(Sketcher.Constraint("Equal", 8, 9))
sketch5.addConstraint(Sketcher.Constraint("Equal", 9, 10))
sketch5.addConstraint(Sketcher.Constraint("Equal", 10, 11))
sketch5.addConstraint(Sketcher.Constraint("Equal", 11, 12))
sketch5.addConstraint(Sketcher.Constraint("Equal", 12, 13))
sketch5.addConstraint(Sketcher.Constraint("Equal", 13, 14))
sketch5.addConstraint(Sketcher.Constraint("Equal", 14, 15))
sketch5.addConstraint(Sketcher.Constraint("Equal", 15, 16))
sketch5.addConstraint(Sketcher.Constraint("Equal", 16, 17))
sketch5.addConstraint(Sketcher.Constraint("Equal", 17, 18))
sketch5.addConstraint(Sketcher.Constraint("Equal", 18, 19))
sketch5.addConstraint(Sketcher.Constraint("Equal", 19, 20))
sketch5.addConstraint(Sketcher.Constraint("Horizontal", 0, 3, 1, 3))
sketch5.addConstraint(Sketcher.Constraint("Horizontal", 1, 3, 2, 3))
sketch5.addConstraint(Sketcher.Constraint("Horizontal", 2, 3, 3, 3))
sketch5.addConstraint(Sketcher.Constraint("Horizontal", 3, 3, 4, 3))
sketch5.addConstraint(Sketcher.Constraint("Horizontal", 4, 3, 5, 3))
sketch5.addConstraint(Sketcher.Constraint("Horizontal", 5, 3, 6, 3))
sketch5.addConstraint(Sketcher.Constraint("Horizontal", 6, 3, 7, 3))
sketch5.addConstraint(Sketcher.Constraint("Horizontal", 7, 3, 8, 3))
sketch5.addConstraint(Sketcher.Constraint("Horizontal", 8, 3, 9, 3))
sketch5.addConstraint(Sketcher.Constraint("Horizontal", 9, 3, 10, 3))
sketch5.addConstraint(Sketcher.Constraint("Horizontal", 10, 3, 11, 3))
sketch5.addConstraint(Sketcher.Constraint("Horizontal", 11, 3, 12, 3))
sketch5.addConstraint(Sketcher.Constraint("Horizontal", 12, 3, 13, 3))
sketch5.addConstraint(Sketcher.Constraint("Horizontal", 13, 3, 14, 3))
sketch5.addConstraint(Sketcher.Constraint("Horizontal", 14, 3, 15, 3))
sketch5.addConstraint(Sketcher.Constraint("Horizontal", 15, 3, 16, 3))
sketch5.addConstraint(Sketcher.Constraint("Horizontal", 16, 3, 17, 3))
sketch5.addConstraint(Sketcher.Constraint("Horizontal", 17, 3, 18, 3))
sketch5.addConstraint(Sketcher.Constraint("Horizontal", 18, 3, 19, 3))
sketch5.addConstraint(Sketcher.Constraint("Horizontal", 19, 3, 20, 3))
sketch5.addConstraint(Sketcher.Constraint("Diameter", 0, Q("0.14 in")))
sketch5.addConstraint(Sketcher.Constraint("DistanceX", 2, 3, 1, 3, Q("0.77 in")))
sketch5.addConstraint(Sketcher.Constraint("DistanceX", 3, 3, 0, 3, Q("0.77 in")))
sketch5.addConstraint(Sketcher.Constraint("DistanceX", 4, 3, 2, 3, Q("0.77 in")))
sketch5.addConstraint(Sketcher.Constraint("DistanceX", 5, 3, 3, 3, Q("0.77 in")))
sketch5.addConstraint(Sketcher.Constraint("DistanceX", 6, 3, 4, 3, Q("0.77 in")))
sketch5.addConstraint(Sketcher.Constraint("DistanceX", 7, 3, 5, 3, Q("0.77 in")))
sketch5.addConstraint(Sketcher.Constraint("DistanceX", 8, 3, 6, 3, Q("0.77 in")))
sketch5.addConstraint(Sketcher.Constraint("DistanceX", 9, 3, 7, 3, Q("0.77 in")))
sketch5.addConstraint(Sketcher.Constraint("DistanceX", 10, 3, 8, 3, Q("0.77 in")))
sketch5.addConstraint(Sketcher.Constraint("DistanceX", 11, 3, 9, 3, Q("0.77 in")))
sketch5.addConstraint(Sketcher.Constraint("DistanceX", 12, 3, 10, 3, Q("0.77 in")))
sketch5.addConstraint(Sketcher.Constraint("DistanceX", 13, 3, 11, 3, Q("0.77 in")))
sketch5.addConstraint(Sketcher.Constraint("DistanceX", 14, 3, 12, 3, Q("0.77 in")))
sketch5.addConstraint(Sketcher.Constraint("DistanceX", 15, 3, 13, 3, Q("0.77 in")))
sketch5.addConstraint(Sketcher.Constraint("DistanceX", 16, 3, 14, 3, Q("0.77 in")))
sketch5.addConstraint(Sketcher.Constraint("DistanceX", 17, 3, 15, 3, Q("0.77 in")))
sketch5.addConstraint(Sketcher.Constraint("DistanceX", 18, 3, 16, 3, Q("0.77 in")))
sketch5.addConstraint(Sketcher.Constraint("DistanceX", 19, 3, 17, 3, Q("0.77 in")))
sketch5.addConstraint(Sketcher.Constraint("DistanceX", 20, 3, 18, 3, Q("0.77 in")))
sketch5.addConstraint(Sketcher.Constraint("DistanceX", -1, 1, 20, 3, Q("0.1875 in")))
sketch5.addConstraint(Sketcher.Constraint("DistanceX", 0, 3, 1, 3, Q("0.385 in")))
sketch5.addConstraint(Sketcher.Constraint("DistanceY", 0, 3, -1, 1, Q("0.3375 in")))
doc.recompute()
hole3 = body.newObject("PartDesign::Hole", "Hole002")
hole3.Profile = sketch5
hole3.ThreadType = "None"
hole3.Diameter = Q("0.14 in")
hole3.DepthType = "Dimension"
hole3.Depth = Q("0.37 in")
hole3.DrillPoint = "Flat"
doc.recompute()

fillet = body.newObject("PartDesign::Fillet", "Fillet")
fillet.Base = (hole3, edges_at(hole3, [
    (3.937, 0, -13.335),
    (3.937, 205.105, -13.335),
    (-3.937, 205.105, -13.335),
    (-3.937, 0, -13.335),
]))
fillet.Radius = Q("0.025 in")

doc.recompute()
